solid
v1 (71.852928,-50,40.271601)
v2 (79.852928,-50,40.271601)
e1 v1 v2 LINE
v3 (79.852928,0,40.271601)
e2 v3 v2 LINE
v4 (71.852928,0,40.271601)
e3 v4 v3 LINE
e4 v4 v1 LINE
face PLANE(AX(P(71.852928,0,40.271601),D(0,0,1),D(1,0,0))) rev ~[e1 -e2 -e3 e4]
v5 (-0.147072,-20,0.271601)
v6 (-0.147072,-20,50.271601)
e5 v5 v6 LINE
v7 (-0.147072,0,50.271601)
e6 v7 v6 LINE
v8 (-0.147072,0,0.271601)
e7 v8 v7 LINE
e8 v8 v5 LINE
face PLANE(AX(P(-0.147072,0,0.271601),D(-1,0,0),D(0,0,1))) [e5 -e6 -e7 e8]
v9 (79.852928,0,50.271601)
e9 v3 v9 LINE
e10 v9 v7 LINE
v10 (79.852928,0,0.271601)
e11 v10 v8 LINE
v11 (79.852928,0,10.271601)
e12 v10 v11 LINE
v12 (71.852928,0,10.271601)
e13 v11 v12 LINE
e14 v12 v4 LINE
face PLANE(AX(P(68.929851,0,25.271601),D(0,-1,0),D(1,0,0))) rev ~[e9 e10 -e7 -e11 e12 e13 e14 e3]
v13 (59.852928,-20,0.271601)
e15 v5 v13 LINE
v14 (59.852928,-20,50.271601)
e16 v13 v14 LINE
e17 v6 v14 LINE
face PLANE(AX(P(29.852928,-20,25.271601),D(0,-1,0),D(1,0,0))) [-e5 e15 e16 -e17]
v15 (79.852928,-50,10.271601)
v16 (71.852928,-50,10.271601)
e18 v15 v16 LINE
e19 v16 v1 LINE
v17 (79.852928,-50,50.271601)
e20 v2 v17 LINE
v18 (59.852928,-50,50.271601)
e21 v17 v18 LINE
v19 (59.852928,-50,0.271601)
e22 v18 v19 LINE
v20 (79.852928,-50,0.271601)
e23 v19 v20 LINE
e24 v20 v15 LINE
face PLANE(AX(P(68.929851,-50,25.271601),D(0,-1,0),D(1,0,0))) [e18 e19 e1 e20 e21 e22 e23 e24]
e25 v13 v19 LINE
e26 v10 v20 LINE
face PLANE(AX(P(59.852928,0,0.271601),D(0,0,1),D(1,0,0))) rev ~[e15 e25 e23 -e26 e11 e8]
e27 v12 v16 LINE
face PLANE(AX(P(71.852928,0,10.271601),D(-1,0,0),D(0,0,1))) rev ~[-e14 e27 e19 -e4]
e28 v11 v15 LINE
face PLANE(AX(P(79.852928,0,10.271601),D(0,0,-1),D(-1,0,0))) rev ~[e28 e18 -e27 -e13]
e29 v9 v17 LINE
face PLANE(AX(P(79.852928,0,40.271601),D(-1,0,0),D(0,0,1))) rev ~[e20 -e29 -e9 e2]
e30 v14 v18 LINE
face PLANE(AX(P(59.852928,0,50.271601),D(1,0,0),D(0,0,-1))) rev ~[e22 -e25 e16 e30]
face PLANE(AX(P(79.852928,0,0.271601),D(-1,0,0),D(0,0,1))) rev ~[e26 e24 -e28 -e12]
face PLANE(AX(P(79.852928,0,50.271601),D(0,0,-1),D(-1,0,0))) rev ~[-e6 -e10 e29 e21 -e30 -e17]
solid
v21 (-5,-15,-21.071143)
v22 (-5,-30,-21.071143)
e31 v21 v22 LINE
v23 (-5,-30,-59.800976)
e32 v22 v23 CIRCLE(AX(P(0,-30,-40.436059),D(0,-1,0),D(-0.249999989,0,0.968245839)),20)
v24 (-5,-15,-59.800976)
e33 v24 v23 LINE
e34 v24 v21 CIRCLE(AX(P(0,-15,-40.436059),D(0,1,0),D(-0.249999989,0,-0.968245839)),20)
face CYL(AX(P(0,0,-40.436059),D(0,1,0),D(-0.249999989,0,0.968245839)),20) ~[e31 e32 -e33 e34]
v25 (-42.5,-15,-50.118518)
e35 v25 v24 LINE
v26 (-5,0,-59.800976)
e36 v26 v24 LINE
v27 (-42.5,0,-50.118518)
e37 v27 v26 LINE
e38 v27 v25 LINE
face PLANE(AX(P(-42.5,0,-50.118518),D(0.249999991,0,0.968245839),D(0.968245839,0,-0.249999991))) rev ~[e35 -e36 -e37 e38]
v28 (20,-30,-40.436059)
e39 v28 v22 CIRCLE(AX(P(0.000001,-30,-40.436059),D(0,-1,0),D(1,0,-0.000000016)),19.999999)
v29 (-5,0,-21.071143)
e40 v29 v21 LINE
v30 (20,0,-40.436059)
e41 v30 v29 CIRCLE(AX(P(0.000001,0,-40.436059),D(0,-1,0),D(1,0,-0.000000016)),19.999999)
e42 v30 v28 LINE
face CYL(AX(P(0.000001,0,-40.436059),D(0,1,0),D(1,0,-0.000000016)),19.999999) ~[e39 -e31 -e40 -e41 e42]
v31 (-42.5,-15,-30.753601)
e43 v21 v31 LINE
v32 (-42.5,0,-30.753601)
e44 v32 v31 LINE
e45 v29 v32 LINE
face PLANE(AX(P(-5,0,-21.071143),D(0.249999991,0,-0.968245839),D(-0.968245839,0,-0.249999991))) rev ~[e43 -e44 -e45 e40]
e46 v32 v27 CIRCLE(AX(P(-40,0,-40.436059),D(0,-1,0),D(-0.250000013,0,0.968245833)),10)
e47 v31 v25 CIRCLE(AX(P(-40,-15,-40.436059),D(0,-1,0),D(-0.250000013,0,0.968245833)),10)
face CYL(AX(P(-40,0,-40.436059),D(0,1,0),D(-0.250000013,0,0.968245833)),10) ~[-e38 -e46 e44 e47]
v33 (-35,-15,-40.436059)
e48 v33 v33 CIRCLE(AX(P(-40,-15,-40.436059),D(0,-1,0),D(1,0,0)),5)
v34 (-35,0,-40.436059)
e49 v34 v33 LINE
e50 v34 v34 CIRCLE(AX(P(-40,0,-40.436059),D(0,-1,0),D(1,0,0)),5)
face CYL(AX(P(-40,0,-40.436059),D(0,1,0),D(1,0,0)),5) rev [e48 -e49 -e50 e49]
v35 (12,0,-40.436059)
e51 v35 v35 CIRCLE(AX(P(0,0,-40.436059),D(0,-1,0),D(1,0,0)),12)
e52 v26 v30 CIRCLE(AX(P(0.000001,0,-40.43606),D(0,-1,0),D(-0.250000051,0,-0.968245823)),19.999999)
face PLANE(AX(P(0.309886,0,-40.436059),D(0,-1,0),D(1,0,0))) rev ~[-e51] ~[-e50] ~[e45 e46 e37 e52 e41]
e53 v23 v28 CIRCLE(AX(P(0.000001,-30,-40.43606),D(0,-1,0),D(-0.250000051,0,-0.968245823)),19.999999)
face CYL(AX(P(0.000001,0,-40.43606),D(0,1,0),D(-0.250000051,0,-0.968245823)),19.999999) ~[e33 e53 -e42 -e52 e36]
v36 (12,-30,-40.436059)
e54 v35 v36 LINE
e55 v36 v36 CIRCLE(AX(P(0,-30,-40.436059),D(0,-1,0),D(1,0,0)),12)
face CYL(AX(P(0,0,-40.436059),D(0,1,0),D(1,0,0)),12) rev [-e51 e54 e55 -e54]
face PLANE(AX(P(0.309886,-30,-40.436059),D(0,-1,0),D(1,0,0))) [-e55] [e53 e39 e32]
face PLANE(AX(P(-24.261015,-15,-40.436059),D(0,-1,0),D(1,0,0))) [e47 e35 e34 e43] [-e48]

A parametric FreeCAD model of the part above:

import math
import FreeCAD as App
import Part
import Sketcher
from FreeCAD import Vector

doc = App.newDocument("Part")
body = doc.addObject("PartDesign::Body", "Body")

# Sketch on XZ plane
sketch1 = doc.addObject("Sketcher::SketchObject", "Sketch")
body.addObject(sketch1)
sketch1.AttachmentSupport = (doc.XZ_Plane, [""])
sketch1.MapMode = "FlatFace"
sketch1.addGeometry([
    Part.LineSegment(Vector(-0.147072, 50.271601, 0), Vector(-0.147072, 0.271601, 0)),
    Part.LineSegment(Vector(-0.147072, 0.271601, 0), Vector(59.852928, 0.271601, 0)),
    Part.LineSegment(Vector(59.852928, 0.271601, 0), Vector(59.852928, 50.271601, 0)),
    Part.LineSegment(Vector(59.852928, 50.271601, 0), Vector(-0.147072, 50.271601, 0)),
], False)
sketch1.addConstraint([
    Sketcher.Constraint("Coincident", 0, 2, 1, 1),
    Sketcher.Constraint("Coincident", 1, 2, 2, 1),
    Sketcher.Constraint("Coincident", 2, 2, 3, 1),
    Sketcher.Constraint("Coincident", 3, 2, 0, 1),
    Sketcher.Constraint("Vertical", 0),
    Sketcher.Constraint("Horizontal", 1),
    Sketcher.Constraint("Vertical", 2),
    Sketcher.Constraint("Horizontal", 3),
    Sketcher.Constraint("DistanceX", 1, 1, 1, 2, 60.0),
    Sketcher.Constraint("DistanceY", 0, 2, 0, 1, 50.0),
    Sketcher.Constraint("DistanceY", -1, 1, 0, 2, 0.271601),
    Sketcher.Constraint("DistanceX", 0, 2, -1, 1, 0.147072),
])
pad1 = doc.addObject("PartDesign::Pad", "Pad")
body.addObject(pad1)
pad1.Profile = sketch1
pad1.Length = 20

# Sketch on XZ plane
sketch2 = doc.addObject("Sketcher::SketchObject", "Sketch001")
body.addObject(sketch2)
sketch2.AttachmentSupport = (doc.XZ_Plane, [""])
sketch2.MapMode = "FlatFace"
sketch2.addGeometry([
    Part.LineSegment(Vector(79.852928, 50.271601, 0), Vector(59.852928, 50.271601, 0)),  # 0
    Part.LineSegment(Vector(59.852928, 50.271601, 0), Vector(59.852928, 0.271601, 0)),  # 1
    Part.LineSegment(Vector(59.852928, 0.271601, 0), Vector(79.852928, 0.271601, 0)),  # 2
    Part.LineSegment(Vector(79.852928, 0.271601, 0), Vector(79.852928, 10.271601, 0)),  # 3
    Part.LineSegment(Vector(79.852928, 10.271601, 0), Vector(71.852928, 10.271601, 0)),  # 4
    Part.LineSegment(Vector(71.852928, 10.271601, 0), Vector(71.852928, 40.271601, 0)),  # 5
    Part.LineSegment(Vector(71.852928, 40.271601, 0), Vector(79.852928, 40.271601, 0)),  # 6
    Part.LineSegment(Vector(79.852928, 40.271601, 0), Vector(79.852928, 50.271601, 0)),  # 7
], False)
sketch2.addConstraint([
    Sketcher.Constraint("Coincident", 0, 2, 1, 1),
    Sketcher.Constraint("Coincident", 1, 2, 2, 1),
    Sketcher.Constraint("Coincident", 2, 2, 3, 1),
    Sketcher.Constraint("Coincident", 3, 2, 4, 1),
    Sketcher.Constraint("Coincident", 4, 2, 5, 1),
    Sketcher.Constraint("Coincident", 5, 2, 6, 1),
    Sketcher.Constraint("Coincident", 6, 2, 7, 1),
    Sketcher.Constraint("Coincident", 7, 2, 0, 1),
    Sketcher.Constraint("Horizontal", 0),
    Sketcher.Constraint("Vertical", 1),
    Sketcher.Constraint("Horizontal", 2),
    Sketcher.Constraint("Vertical", 3),
    Sketcher.Constraint("Horizontal", 4),
    Sketcher.Constraint("Vertical", 5),
    Sketcher.Constraint("Horizontal", 6),
    Sketcher.Constraint("Vertical", 7),
    Sketcher.Constraint("Vertical", 3, 2, 6, 2),
    Sketcher.Constraint("Equal", 3, 7),
    Sketcher.Constraint("DistanceX", 0, 2, 0, 1, 20.0),
    Sketcher.Constraint("DistanceX", 4, 2, 4, 1, 8.0),
    Sketcher.Constraint("DistanceY", 1, 2, 1, 1, 50.0),
    Sketcher.Constraint("DistanceY", 3, 1, 3, 2, 10.0),
    Sketcher.Constraint("DistanceY", -1, 1, 0, 2, 50.271601),
    Sketcher.Constraint("DistanceX", -1, 1, 2, 2, 79.852928),
])
pad2 = doc.addObject("PartDesign::Pad", "Pad001")
body.addObject(pad2)
pad2.Profile = sketch2
pad2.Length = 50
body2 = doc.addObject("PartDesign::Body", "Body001")

# Sketch on XZ plane
sketch3 = doc.addObject("Sketcher::SketchObject", "Sketch002")
body2.addObject(sketch3)
sketch3.AttachmentSupport = (doc.getObject("XZ_Plane001"), [""])
sketch3.MapMode = "FlatFace"
sketch3.addGeometry([
    Part.LineSegment(Vector(-5, -21.071143, 0), Vector(-42.5, -30.753601, 0)),  # 0
    Part.ArcOfCircle(Part.Circle(Vector(-40, -40.436059, 0), Vector(0, 0, 1), 10), math.radians(104.477513), math.radians(255.522487)),  # 1
    Part.LineSegment(Vector(-42.5, -50.118518, 0), Vector(-5, -59.800976, 0)),  # 2
    Part.ArcOfCircle(Part.Circle(Vector(0, -40.436059, 0), Vector(0, 0, 1), 20), math.radians(104.477512), math.radians(255.522488)),  # 3
    Part.Circle(Vector(-40, -40.436059, 0), Vector(0, 0, 1), 5),  # 4
], False)
sketch3.addConstraint([
    Sketcher.Constraint("Tangent", 0, 2, 1, 1),
    Sketcher.Constraint("Tangent", 1, 2, 2, 1),
    Sketcher.Constraint("Tangent", 2, 2, 3, 2),
    Sketcher.Constraint("Tangent", 3, 1, 0, 1),
    Sketcher.Constraint("Coincident", 4, 3, 1, 3),
    Sketcher.Constraint("PointOnObject", 3, 3, -2),
    Sketcher.Constraint("Horizontal", 1, 3, 3, 3),
    Sketcher.Constraint("Diameter", 4, 10.0),
    Sketcher.Constraint("Radius", 1, 10.0),
    Sketcher.Constraint("Radius", 3, 20.0),
    Sketcher.Constraint("DistanceX", 1, 3, -1, 1, 40.0),
    Sketcher.Constraint("DistanceY", 0, 2, -1, 1, 30.753601),
])
pad3 = doc.addObject("PartDesign::Pad", "Pad002")
body2.addObject(pad3)
pad3.Profile = sketch3
pad3.Length = 15

# Sketch on XZ plane
sketch4 = doc.addObject("Sketcher::SketchObject", "Sketch003")
body2.addObject(sketch4)
sketch4.AttachmentSupport = (doc.getObject("XZ_Plane001"), [""])
sketch4.MapMode = "FlatFace"
sketch4.addGeometry([
    Part.ArcOfCircle(Part.Circle(Vector(0.000001, -40.436059, 0), Vector(0, 0, 1), 19.999999), math.radians(-0.000001), math.radians(104.477515)),
    Part.ArcOfCircle(Part.Circle(Vector(0, -40.436059, 0), Vector(0, 0, 1), 20), math.radians(104.477512), math.radians(255.522488)),
    Part.ArcOfCircle(Part.Circle(Vector(0.000001, -40.43606, 0), Vector(0, 0, 1), 19.999999), math.radians(-104.477515), math.radians(0.000004)),
    Part.Circle(Vector(0, -40.436059, 0), Vector(0, 0, 1), 12),
], False)
sketch4.addConstraint([
    Sketcher.Constraint("Tangent", 0, 2, 1, 1),
    Sketcher.Constraint("Tangent", 1, 2, 2, 1),
    Sketcher.Constraint("Tangent", 2, 2, 0, 1),
    Sketcher.Constraint("Coincident", 3, 3, 0, 3),
    Sketcher.Constraint("PointOnObject", 0, 3, -2),
    Sketcher.Constraint("Horizontal", 3, 3, 2, 2),
    Sketcher.Constraint("Vertical", 0, 2, 1, 2),
    Sketcher.Constraint("Diameter", 3, 24.0),
    Sketcher.Constraint("Radius", 0, 19.999999),
    Sketcher.Constraint("DistanceX", 0, 2, -1, 1, 5.0),
    Sketcher.Constraint("DistanceY", 0, 3, -1, 1, 40.436059),
])
pad4 = doc.addObject("PartDesign::Pad", "Pad003")
body2.addObject(pad4)
pad4.Profile = sketch4
pad4.Length = 30

doc.recompute()
